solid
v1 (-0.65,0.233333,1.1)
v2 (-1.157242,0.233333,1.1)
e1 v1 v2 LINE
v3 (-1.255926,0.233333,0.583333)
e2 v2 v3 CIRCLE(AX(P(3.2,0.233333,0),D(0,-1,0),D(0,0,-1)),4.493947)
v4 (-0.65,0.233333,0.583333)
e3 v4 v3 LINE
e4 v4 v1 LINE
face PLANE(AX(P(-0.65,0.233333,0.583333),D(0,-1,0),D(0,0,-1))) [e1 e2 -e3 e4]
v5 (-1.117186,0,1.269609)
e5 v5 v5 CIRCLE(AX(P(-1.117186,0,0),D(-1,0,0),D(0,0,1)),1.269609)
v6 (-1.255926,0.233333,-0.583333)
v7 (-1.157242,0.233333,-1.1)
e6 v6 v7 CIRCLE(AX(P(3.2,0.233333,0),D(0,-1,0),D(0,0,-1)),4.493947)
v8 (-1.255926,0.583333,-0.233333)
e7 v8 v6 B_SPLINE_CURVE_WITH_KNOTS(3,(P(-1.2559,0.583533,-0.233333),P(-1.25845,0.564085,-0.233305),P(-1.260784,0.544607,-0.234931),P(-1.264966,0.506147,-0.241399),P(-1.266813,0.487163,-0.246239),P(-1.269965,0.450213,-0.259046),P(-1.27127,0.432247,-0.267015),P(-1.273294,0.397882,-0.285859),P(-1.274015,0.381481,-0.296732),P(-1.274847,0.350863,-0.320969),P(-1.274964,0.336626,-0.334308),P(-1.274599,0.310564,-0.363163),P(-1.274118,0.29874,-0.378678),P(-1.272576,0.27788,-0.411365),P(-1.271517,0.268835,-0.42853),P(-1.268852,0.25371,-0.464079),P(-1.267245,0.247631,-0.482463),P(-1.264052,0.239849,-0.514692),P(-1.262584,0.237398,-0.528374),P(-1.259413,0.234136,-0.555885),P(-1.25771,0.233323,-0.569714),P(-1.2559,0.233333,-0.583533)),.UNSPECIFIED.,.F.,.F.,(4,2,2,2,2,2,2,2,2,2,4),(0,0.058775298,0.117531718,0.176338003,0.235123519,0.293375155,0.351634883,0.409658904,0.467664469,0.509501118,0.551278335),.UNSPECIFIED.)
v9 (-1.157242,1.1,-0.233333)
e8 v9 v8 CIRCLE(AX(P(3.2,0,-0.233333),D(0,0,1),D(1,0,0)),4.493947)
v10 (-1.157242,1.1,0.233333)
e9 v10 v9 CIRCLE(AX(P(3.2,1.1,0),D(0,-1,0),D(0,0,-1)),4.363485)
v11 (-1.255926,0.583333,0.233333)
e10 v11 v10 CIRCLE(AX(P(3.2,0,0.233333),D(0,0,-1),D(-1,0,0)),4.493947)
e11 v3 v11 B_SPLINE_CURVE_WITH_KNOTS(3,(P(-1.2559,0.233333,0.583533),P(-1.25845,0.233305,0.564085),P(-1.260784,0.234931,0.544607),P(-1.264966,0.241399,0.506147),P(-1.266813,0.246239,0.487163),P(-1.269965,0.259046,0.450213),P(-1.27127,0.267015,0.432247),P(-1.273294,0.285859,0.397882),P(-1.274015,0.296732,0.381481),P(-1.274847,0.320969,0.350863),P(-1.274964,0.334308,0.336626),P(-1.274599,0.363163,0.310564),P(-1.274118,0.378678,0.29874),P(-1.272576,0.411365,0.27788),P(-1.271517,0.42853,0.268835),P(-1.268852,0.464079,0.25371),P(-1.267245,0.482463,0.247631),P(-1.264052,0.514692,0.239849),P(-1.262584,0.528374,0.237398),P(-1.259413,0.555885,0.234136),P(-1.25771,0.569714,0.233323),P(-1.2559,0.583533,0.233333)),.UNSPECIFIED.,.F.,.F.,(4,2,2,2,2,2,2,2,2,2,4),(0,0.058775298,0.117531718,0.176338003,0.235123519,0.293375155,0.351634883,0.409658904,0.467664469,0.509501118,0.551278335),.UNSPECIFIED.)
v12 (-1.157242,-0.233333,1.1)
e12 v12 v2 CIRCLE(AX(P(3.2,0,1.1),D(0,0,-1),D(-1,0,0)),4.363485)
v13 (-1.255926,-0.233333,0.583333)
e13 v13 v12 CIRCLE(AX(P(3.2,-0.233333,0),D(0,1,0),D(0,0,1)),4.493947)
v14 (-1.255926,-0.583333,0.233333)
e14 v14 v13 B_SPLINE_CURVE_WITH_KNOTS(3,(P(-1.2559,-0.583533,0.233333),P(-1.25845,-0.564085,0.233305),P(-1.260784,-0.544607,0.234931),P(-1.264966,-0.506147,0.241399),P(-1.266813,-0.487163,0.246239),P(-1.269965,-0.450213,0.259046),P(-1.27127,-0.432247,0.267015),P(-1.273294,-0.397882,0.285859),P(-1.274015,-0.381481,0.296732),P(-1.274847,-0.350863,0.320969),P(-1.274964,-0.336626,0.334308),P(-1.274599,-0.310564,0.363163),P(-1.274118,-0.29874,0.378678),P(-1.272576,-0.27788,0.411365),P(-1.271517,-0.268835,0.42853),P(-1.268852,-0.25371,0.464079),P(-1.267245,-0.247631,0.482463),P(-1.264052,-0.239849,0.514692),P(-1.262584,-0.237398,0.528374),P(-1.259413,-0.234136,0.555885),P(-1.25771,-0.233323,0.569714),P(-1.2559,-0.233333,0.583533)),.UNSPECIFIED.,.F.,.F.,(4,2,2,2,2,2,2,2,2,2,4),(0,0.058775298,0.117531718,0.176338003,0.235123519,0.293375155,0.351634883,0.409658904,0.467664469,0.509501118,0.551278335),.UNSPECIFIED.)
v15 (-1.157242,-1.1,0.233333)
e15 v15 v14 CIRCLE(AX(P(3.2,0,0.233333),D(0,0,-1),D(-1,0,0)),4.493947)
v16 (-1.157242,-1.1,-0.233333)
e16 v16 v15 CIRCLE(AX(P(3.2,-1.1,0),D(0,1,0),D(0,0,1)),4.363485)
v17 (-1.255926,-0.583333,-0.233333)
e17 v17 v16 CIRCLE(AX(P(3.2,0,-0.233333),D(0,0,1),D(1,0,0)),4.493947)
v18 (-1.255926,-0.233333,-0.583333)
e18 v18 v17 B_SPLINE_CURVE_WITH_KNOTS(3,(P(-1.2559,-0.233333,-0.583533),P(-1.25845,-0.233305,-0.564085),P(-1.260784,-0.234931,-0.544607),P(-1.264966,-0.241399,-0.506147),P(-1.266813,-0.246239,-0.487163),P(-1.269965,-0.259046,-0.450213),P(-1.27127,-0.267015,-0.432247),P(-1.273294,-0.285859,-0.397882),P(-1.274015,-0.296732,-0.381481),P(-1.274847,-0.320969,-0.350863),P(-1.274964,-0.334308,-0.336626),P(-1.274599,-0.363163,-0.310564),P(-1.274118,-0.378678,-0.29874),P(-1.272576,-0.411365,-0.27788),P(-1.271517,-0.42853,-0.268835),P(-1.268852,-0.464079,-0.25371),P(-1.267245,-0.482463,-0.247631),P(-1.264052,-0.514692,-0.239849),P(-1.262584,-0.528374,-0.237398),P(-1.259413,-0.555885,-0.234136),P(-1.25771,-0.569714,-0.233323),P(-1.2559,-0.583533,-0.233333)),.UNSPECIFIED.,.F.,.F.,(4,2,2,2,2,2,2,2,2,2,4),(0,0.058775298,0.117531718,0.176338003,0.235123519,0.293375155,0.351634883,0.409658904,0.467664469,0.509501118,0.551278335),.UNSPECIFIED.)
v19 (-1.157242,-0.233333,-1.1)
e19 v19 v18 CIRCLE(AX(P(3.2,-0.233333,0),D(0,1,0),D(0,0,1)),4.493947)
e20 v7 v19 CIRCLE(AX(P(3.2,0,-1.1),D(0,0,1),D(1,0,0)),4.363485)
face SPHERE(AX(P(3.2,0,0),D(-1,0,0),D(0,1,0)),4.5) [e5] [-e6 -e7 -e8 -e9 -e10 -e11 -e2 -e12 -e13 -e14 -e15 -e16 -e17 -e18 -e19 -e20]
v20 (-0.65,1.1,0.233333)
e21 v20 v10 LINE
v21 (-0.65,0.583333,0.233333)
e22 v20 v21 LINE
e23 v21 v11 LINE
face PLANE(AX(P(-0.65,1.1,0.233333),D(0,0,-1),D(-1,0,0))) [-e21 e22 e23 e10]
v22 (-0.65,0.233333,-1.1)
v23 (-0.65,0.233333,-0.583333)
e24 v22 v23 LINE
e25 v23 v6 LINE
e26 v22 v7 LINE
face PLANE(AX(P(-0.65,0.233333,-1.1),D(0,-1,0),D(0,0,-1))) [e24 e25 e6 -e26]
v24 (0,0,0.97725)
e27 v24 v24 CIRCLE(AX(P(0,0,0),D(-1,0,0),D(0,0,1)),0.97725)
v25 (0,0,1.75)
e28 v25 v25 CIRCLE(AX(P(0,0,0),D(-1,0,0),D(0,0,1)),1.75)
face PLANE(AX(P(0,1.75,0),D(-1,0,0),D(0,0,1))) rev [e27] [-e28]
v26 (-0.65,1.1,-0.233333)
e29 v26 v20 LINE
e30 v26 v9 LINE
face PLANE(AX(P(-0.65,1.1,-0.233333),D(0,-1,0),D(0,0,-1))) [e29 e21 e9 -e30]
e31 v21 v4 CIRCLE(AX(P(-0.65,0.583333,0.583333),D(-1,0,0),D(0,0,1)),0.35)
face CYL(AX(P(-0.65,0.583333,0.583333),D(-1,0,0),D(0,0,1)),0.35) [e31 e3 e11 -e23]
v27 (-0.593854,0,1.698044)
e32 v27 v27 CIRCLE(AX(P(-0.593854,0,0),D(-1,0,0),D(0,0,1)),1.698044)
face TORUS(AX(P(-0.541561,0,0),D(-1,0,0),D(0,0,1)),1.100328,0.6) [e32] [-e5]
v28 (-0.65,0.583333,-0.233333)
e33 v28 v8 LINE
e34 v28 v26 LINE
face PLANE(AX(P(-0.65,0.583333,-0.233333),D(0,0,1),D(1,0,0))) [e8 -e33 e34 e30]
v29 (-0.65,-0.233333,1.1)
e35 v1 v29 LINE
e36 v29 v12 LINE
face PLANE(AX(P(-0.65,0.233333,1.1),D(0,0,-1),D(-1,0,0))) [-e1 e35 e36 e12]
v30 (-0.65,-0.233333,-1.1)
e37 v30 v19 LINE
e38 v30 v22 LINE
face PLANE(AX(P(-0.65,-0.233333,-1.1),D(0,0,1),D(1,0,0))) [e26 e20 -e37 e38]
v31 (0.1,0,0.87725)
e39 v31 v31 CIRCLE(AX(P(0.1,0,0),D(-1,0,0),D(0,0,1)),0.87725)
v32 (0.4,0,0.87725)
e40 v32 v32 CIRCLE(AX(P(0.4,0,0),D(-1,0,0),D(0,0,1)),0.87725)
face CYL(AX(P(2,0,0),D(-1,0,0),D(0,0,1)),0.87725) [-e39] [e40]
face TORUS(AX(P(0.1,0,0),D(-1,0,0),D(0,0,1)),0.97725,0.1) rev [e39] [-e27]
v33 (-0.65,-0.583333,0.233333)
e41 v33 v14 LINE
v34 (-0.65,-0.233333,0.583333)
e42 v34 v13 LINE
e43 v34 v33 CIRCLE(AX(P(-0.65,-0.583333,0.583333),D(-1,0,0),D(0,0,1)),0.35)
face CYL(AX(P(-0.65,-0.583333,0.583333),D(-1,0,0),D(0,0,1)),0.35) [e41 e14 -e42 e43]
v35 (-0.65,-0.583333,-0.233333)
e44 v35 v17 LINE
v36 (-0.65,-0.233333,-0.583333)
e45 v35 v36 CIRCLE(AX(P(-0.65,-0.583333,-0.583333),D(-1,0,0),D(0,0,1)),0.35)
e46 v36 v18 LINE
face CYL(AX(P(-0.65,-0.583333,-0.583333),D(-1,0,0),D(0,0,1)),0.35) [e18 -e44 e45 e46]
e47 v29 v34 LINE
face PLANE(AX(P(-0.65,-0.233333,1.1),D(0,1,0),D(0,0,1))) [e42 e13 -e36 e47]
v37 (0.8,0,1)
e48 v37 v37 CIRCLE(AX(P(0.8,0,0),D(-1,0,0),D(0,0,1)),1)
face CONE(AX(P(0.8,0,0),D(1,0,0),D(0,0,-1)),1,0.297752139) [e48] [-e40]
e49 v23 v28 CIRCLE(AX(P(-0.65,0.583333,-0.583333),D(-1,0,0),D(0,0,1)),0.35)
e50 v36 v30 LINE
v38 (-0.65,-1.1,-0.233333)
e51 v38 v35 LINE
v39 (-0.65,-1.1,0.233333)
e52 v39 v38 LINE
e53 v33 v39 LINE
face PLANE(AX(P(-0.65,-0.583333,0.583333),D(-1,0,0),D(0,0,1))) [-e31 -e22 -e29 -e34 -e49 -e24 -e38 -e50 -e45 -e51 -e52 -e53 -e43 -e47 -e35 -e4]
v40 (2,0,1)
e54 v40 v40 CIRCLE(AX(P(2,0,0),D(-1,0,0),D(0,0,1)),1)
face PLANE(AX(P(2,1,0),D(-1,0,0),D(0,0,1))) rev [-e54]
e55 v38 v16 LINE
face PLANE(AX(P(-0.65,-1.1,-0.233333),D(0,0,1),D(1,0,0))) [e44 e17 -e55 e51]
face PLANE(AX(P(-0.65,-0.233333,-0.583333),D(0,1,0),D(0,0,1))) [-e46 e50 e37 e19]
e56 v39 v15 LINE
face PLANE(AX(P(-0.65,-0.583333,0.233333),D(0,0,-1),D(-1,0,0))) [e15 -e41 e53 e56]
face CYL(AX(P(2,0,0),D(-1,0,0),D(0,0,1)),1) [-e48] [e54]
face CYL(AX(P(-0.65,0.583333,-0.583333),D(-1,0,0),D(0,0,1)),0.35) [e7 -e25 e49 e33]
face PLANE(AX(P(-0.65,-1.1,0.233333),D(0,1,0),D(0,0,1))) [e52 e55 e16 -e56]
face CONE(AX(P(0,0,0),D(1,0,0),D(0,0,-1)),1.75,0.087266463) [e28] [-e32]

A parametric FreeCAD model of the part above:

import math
import FreeCAD as App
import Part
import Sketcher
from FreeCAD import Vector
Q = App.Units.Quantity

doc = App.newDocument("Part")
body = doc.addObject("PartDesign::Body", "Body")

sketch1 = doc.addObject("Sketcher::SketchObject", "Sketch")
body.addObject(sketch1)
sketch1.AttachmentSupport = (doc.XY_Plane, [""])
sketch1.MapMode = "FlatFace"
sketch1.addGeometry([
    Part.LineSegment(Vector(0, 1.75, 0), Vector(-0.59, 1.7, 0)),
    Part.ArcOfCircle(Part.Circle(Vector(-0.54, 1.1, 0), Vector(0, 0, 1), 0.6), math.radians(95), math.radians(164)),
    Part.ArcOfCircle(Part.Circle(Vector(3.2, 0, 0), Vector(0, 0, 1), 4.5), math.radians(163.61), math.radians(180)),
    Part.LineSegment(Vector(-1.3, 0, 0), Vector(2, 0, 0)),
    Part.LineSegment(Vector(2, 0, 0), Vector(2, 1, 0)),
    Part.LineSegment(Vector(2, 1, 0), Vector(0.8, 1, 0)),
    Part.LineSegment(Vector(0.8, 1, 0), Vector(0.4, 0.88, 0)),
    Part.LineSegment(Vector(0.4, 0.88, 0), Vector(0.1, 0.88, 0)),
    Part.ArcOfCircle(Part.Circle(Vector(0.1, 0.98, 0), Vector(0, 0, 1), 0.1), math.radians(180), math.radians(270)),
    Part.LineSegment(Vector(0, 0.98, 0), Vector(0, 1.75, 0)),
], False)
sketch1.addConstraint([
    Sketcher.Constraint("Tangent", 0, 2, 1, 1),
    Sketcher.Constraint("Tangent", 1, 2, 2, 1),
    Sketcher.Constraint("Coincident", 2, 2, 3, 1),
    Sketcher.Constraint("Coincident", 3, 2, 4, 1),
    Sketcher.Constraint("Coincident", 4, 2, 5, 1),
    Sketcher.Constraint("Coincident", 5, 2, 6, 1),
    Sketcher.Constraint("Coincident", 6, 2, 7, 1),
    Sketcher.Constraint("Tangent", 7, 2, 8, 2),
    Sketcher.Constraint("Tangent", 8, 1, 9, 1),
    Sketcher.Constraint("Coincident", 9, 2, 0, 1),
    Sketcher.Constraint("Horizontal", 3),
    Sketcher.Constraint("Vertical", 4),
    Sketcher.Constraint("Horizontal", 5),
    Sketcher.Constraint("Horizontal", 7),
    Sketcher.Constraint("Vertical", 9),
    Sketcher.Constraint("PointOnObject", 2, 3, -1),
    Sketcher.Constraint("PointOnObject", 2, 2, -1),
    Sketcher.Constraint("PointOnObject", 8, 1, -2),
    Sketcher.Constraint("Radius", 1, Q("0.6 mm")),
    Sketcher.Constraint("Radius", 2, Q("4.5 mm")),
    Sketcher.Constraint("Radius", 8, Q("0.1 mm")),
    Sketcher.Constraint("DistanceY", 4, 1, 4, 2, Q("1 mm")),
    Sketcher.Constraint("Angle", 0, Q("-175 deg")),
    Sketcher.Constraint("DistanceX", 3, 1, 3, 2, Q("3.3 mm")),
    Sketcher.Constraint("DistanceX", 5, 2, 5, 1, Q("1.2 mm")),
    Sketcher.Constraint("DistanceX", 7, 2, 7, 1, Q("0.3 mm")),
    Sketcher.Constraint("DistanceX", -1, 1, 3, 2, Q("2 mm")),
    Sketcher.Constraint("DistanceY", -1, 1, 9, 2, Q("1.75 mm")),
    Sketcher.Constraint("DistanceY", 9, 1, 9, 2, Q("0.77275 mm")),
])
revolution = doc.addObject("PartDesign::Revolution", "Revolution")
body.addObject(revolution)
revolution.Profile = sketch1
revolution.ReferenceAxis = (sketch1, ["H_Axis"])
revolution.Angle = 360

sketch2 = doc.addObject("Sketcher::SketchObject", "Sketch001")
body.addObject(sketch2)
sketch2.AttachmentSupport = (doc.YZ_Plane, [""])
sketch2.MapMode = "FlatFace"
sketch2.AttachmentOffset = App.Placement(Vector(0, 0, -1.3), App.Rotation())
sketch2.addGeometry([
    Part.LineSegment(Vector(0.23, 1.1, 0), Vector(-0.23, 1.1, 0)),
    Part.LineSegment(Vector(-0.23, 1.1, 0), Vector(-0.23, 0.58, 0)),
    Part.ArcOfCircle(Part.Circle(Vector(-0.58, 0.58, 0), Vector(0, 0, 1), 0.35), math.radians(-90), math.radians(0)),
    Part.LineSegment(Vector(-0.58, 0.23, 0), Vector(-1.1, 0.23, 0)),
    Part.LineSegment(Vector(-1.1, 0.23, 0), Vector(-1.1, -0.23, 0)),
    Part.LineSegment(Vector(-1.1, -0.23, 0), Vector(-0.58, -0.23, 0)),
    Part.ArcOfCircle(Part.Circle(Vector(-0.58, -0.58, 0), Vector(0, 0, 1), 0.35), math.radians(0), math.radians(90)),
    Part.LineSegment(Vector(-0.23, -0.58, 0), Vector(-0.23, -1.1, 0)),
    Part.LineSegment(Vector(-0.23, -1.1, 0), Vector(0.23, -1.1, 0)),
    Part.LineSegment(Vector(0.23, -1.1, 0), Vector(0.23, -0.58, 0)),
    Part.ArcOfCircle(Part.Circle(Vector(0.58, -0.58, 0), Vector(0, 0, 1), 0.35), math.radians(90), math.radians(180)),
    Part.LineSegment(Vector(0.58, -0.23, 0), Vector(1.1, -0.23, 0)),
    Part.LineSegment(Vector(1.1, -0.23, 0), Vector(1.1, 0.23, 0)),
    Part.LineSegment(Vector(1.1, 0.23, 0), Vector(0.58, 0.23, 0)),
    Part.ArcOfCircle(Part.Circle(Vector(0.58, 0.58, 0), Vector(0, 0, 1), 0.35), math.radians(-180), math.radians(-90)),
    Part.LineSegment(Vector(0.23, 0.58, 0), Vector(0.23, 1.1, 0)),
], False)
sketch2.addConstraint([
    Sketcher.Constraint("Coincident", 0, 2, 1, 1),
    Sketcher.Constraint("Tangent", 1, 2, 2, 2),
    Sketcher.Constraint("Tangent", 2, 1, 3, 1),
    Sketcher.Constraint("Coincident", 3, 2, 4, 1),
    Sketcher.Constraint("Coincident", 4, 2, 5, 1),
    Sketcher.Constraint("Tangent", 5, 2, 6, 2),
    Sketcher.Constraint("Tangent", 6, 1, 7, 1),
    Sketcher.Constraint("Coincident", 7, 2, 8, 1),
    Sketcher.Constraint("Coincident", 8, 2, 9, 1),
    Sketcher.Constraint("Tangent", 9, 2, 10, 2),
    Sketcher.Constraint("Tangent", 10, 1, 11, 1),
    Sketcher.Constraint("Coincident", 11, 2, 12, 1),
    Sketcher.Constraint("Coincident", 12, 2, 13, 1),
    Sketcher.Constraint("Tangent", 13, 2, 14, 2),
    Sketcher.Constraint("Tangent", 14, 1, 15, 1),
    Sketcher.Constraint("Coincident", 15, 2, 0, 1),
    Sketcher.Constraint("Horizontal", 0),
    Sketcher.Constraint("Vertical", 1),
    Sketcher.Constraint("Horizontal", 3),
    Sketcher.Constraint("Vertical", 4),
    Sketcher.Constraint("Horizontal", 5),
    Sketcher.Constraint("Vertical", 7),
    Sketcher.Constraint("Horizontal", 8),
    Sketcher.Constraint("Vertical", 9),
    Sketcher.Constraint("Horizontal", 11),
    Sketcher.Constraint("Vertical", 12),
    Sketcher.Constraint("Horizontal", 13),
    Sketcher.Constraint("Vertical", 15),
    Sketcher.Constraint("Equal", 2, 6),
    Sketcher.Constraint("Equal", 6, 10),
    Sketcher.Constraint("Equal", 10, 14),
    Sketcher.Constraint("Symmetric", 2, 3, 10, 3, -1, 1),
    Sketcher.Constraint("Symmetric", 6, 3, 14, 3, -1, 1),
    Sketcher.Constraint("Symmetric", 6, 3, 10, 3, -2),
    Sketcher.Constraint("Equal", 5, 11),
    Sketcher.Constraint("Equal", 13, 1),
    Sketcher.Constraint("Equal", 8, 4),
    Sketcher.Constraint("Equal", 1, 7),
    Sketcher.Constraint("Radius", 2, Q("0.35 mm")),
    Sketcher.Constraint("DistanceY", -1, 1, 0, 2, Q("1.1 mm")),
    Sketcher.Constraint("DistanceX", 0, 2, 0, 1, Q("0.466667 mm")),
])
pocket1 = doc.addObject("PartDesign::Pocket", "Pocket")
body.addObject(pocket1)
pocket1.Profile = sketch2
pocket1.Length = 0.65
pocket1.Reversed = True

doc.recompute()
